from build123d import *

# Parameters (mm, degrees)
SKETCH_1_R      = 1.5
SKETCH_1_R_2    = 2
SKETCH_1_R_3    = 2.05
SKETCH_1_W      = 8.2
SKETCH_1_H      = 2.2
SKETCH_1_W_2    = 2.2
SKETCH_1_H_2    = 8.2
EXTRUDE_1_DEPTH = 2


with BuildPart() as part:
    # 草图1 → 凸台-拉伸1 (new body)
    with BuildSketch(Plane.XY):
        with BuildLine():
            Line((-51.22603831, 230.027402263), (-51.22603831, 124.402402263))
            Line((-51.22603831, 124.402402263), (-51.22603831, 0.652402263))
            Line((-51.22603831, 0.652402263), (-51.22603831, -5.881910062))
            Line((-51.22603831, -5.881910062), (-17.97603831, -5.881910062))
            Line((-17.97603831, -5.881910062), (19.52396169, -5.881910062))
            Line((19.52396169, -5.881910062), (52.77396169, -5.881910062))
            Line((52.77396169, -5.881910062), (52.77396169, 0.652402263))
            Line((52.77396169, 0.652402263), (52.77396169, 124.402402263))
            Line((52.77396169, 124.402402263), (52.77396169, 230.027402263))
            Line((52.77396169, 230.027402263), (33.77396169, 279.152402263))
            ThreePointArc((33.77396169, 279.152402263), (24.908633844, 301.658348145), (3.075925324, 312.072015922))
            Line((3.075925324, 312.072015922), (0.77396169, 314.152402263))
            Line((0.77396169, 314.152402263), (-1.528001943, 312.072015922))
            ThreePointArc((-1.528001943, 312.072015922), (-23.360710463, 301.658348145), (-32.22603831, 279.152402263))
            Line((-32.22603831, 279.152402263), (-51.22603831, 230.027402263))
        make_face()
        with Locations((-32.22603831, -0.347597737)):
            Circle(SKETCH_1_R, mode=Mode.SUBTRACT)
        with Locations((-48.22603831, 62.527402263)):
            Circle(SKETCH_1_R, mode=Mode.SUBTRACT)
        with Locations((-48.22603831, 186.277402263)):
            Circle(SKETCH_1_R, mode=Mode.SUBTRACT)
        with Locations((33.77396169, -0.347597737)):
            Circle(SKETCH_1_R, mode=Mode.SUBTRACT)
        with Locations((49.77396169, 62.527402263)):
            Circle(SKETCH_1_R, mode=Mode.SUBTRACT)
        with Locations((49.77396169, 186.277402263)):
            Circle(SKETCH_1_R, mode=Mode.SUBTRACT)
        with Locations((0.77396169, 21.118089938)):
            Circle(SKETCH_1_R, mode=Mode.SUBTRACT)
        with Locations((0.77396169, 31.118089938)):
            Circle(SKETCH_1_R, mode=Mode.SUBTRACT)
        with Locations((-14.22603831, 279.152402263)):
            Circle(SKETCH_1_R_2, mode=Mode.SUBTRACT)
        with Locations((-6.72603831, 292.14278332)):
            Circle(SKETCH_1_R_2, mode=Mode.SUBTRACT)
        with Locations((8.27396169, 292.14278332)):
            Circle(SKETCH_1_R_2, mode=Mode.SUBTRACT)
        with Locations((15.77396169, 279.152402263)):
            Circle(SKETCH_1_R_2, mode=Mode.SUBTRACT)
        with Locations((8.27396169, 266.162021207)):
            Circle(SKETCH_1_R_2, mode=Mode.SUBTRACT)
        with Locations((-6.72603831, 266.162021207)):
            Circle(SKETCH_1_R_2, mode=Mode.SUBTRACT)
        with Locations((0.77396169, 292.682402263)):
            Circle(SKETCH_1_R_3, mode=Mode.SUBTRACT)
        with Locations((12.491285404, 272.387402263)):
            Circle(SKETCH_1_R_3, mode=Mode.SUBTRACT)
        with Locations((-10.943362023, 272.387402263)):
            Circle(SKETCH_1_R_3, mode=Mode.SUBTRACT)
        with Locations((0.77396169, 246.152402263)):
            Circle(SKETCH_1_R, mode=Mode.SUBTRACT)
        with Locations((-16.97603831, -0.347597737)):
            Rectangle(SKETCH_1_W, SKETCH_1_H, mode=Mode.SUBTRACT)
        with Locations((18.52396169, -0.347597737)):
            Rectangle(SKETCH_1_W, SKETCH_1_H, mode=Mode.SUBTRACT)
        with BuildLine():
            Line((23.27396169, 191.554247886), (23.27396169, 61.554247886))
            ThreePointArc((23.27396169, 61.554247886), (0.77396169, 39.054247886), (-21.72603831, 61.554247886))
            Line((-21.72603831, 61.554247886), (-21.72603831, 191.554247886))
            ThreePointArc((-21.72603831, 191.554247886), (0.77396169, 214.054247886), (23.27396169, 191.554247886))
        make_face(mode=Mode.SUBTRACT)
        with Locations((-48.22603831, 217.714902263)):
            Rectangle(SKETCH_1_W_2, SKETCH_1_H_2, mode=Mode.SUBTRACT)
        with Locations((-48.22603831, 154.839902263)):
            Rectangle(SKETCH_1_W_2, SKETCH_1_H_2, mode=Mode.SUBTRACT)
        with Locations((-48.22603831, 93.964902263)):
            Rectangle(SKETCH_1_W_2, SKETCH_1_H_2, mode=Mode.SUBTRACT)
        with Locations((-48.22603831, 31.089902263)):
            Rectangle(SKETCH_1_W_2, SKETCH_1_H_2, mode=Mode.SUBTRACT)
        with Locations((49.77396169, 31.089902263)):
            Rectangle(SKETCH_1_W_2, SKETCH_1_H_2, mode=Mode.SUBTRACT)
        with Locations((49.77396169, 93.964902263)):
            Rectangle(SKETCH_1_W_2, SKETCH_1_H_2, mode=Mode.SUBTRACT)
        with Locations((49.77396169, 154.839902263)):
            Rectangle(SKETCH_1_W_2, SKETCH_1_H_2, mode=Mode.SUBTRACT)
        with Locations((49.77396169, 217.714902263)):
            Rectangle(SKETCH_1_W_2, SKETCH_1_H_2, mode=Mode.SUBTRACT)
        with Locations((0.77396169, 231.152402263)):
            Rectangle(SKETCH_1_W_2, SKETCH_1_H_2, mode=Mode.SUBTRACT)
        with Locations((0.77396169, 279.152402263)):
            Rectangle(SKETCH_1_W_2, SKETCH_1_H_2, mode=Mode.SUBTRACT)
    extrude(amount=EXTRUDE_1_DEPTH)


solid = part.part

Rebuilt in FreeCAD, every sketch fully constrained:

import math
import FreeCAD as App
import Part
import Sketcher
from FreeCAD import Vector
Q = App.Units.Quantity

doc = App.newDocument("Part")
body = doc.addObject("PartDesign::Body", "Body")

# Sketch on XY plane
sketch1 = body.newObject("Sketcher::SketchObject", "Sketch")
sketch1.AttachmentSupport = (doc.getObject("XY_Plane"), [""])
sketch1.MapMode = "FlatFace"
sketch1.addGeometry([
    Part.LineSegment(Vector(-51.2, 230, 0), Vector(-51.2, -5.9, 0)),  # 0
    Part.LineSegment(Vector(-51.2, -5.9, 0), Vector(52.8, -5.9, 0)),  # 1
    Part.LineSegment(Vector(52.8, -5.9, 0), Vector(52.8, 230, 0)),  # 2
    Part.LineSegment(Vector(52.8, 230, 0), Vector(33.8, 279.2, 0)),  # 3
    Part.ArcOfCircle(Part.Circle(Vector(0.8, 279.2, 0), Vector(0, 0, 1), 33), math.radians(0), math.radians(86)),  # 4
    Part.LineSegment(Vector(3.1, 312.1, 0), Vector(0.8, 314.2, 0)),  # 5
    Part.LineSegment(Vector(0.8, 314.2, 0), Vector(-1.5, 312.1, 0)),  # 6
    Part.ArcOfCircle(Part.Circle(Vector(0.8, 279.2, 0), Vector(0, 0, 1), 33), math.radians(94), math.radians(180)),  # 7
    Part.LineSegment(Vector(-32.2, 279.2, 0), Vector(-51.2, 230, 0)),  # 8
    Part.LineSegment(Vector(-47.1, 27, 0), Vector(-49.3, 27, 0)),  # 9
    Part.LineSegment(Vector(-49.3, 27, 0), Vector(-49.3, 35.2, 0)),  # 10
    Part.LineSegment(Vector(-49.3, 35.2, 0), Vector(-47.1, 35.2, 0)),  # 11
    Part.LineSegment(Vector(-47.1, 35.2, 0), Vector(-47.1, 27, 0)),  # 12
    Part.Circle(Vector(-32.2, -0.3, 0), Vector(0, 0, 1), 1.5),  # 13
    Part.Circle(Vector(-48.2, 62.5, 0), Vector(0, 0, 1), 1.5),  # 14
    Part.LineSegment(Vector(-12.9, -1.4, 0), Vector(-21.1, -1.4, 0)),  # 15
    Part.LineSegment(Vector(-21.1, -1.4, 0), Vector(-21.1, 0.8, 0)),  # 16
    Part.LineSegment(Vector(-21.1, 0.8, 0), Vector(-12.9, 0.8, 0)),  # 17
    Part.LineSegment(Vector(-12.9, 0.8, 0), Vector(-12.9, -1.4, 0)),  # 18
    Part.LineSegment(Vector(-47.1, 89.9, 0), Vector(-49.3, 89.9, 0)),  # 19
    Part.LineSegment(Vector(-49.3, 89.9, 0), Vector(-49.3, 98.1, 0)),  # 20
    Part.LineSegment(Vector(-49.3, 98.1, 0), Vector(-47.1, 98.1, 0)),  # 21
    Part.LineSegment(Vector(-47.1, 98.1, 0), Vector(-47.1, 89.9, 0)),  # 22
    Part.Circle(Vector(0.8, 21.1, 0), Vector(0, 0, 1), 1.5),  # 23
    Part.Circle(Vector(0.8, 31.1, 0), Vector(0, 0, 1), 1.5),  # 24
    Part.LineSegment(Vector(22.6, -1.4, 0), Vector(14.4, -1.4, 0)),  # 25
    Part.LineSegment(Vector(14.4, -1.4, 0), Vector(14.4, 0.8, 0)),  # 26
    Part.LineSegment(Vector(14.4, 0.8, 0), Vector(22.6, 0.8, 0)),  # 27
    Part.LineSegment(Vector(22.6, 0.8, 0), Vector(22.6, -1.4, 0)),  # 28
    Part.Circle(Vector(33.8, -0.3, 0), Vector(0, 0, 1), 1.5),  # 29
    Part.LineSegment(Vector(50.9, 27, 0), Vector(48.7, 27, 0)),  # 30
    Part.LineSegment(Vector(48.7, 27, 0), Vector(48.7, 35.2, 0)),  # 31
    Part.LineSegment(Vector(48.7, 35.2, 0), Vector(50.9, 35.2, 0)),  # 32
    Part.LineSegment(Vector(50.9, 35.2, 0), Vector(50.9, 27, 0)),  # 33
    Part.Circle(Vector(49.8, 62.5, 0), Vector(0, 0, 1), 1.5),  # 34
    Part.ArcOfCircle(Part.Circle(Vector(0.8, 191.6, 0), Vector(0, 0, 1), 22.5), math.radians(0), math.radians(180)),  # 35
    Part.LineSegment(Vector(23.3, 191.6, 0), Vector(23.3, 61.6, 0)),  # 36
    Part.ArcOfCircle(Part.Circle(Vector(0.8, 61.6, 0), Vector(0, 0, 1), 22.5), math.radians(180), math.radians(360)),  # 37
    Part.LineSegment(Vector(-21.7, 61.6, 0), Vector(-21.7, 191.6, 0)),  # 38
    Part.LineSegment(Vector(50.9, 89.9, 0), Vector(48.7, 89.9, 0)),  # 39
    Part.LineSegment(Vector(48.7, 89.9, 0), Vector(48.7, 98.1, 0)),  # 40
    Part.LineSegment(Vector(48.7, 98.1, 0), Vector(50.9, 98.1, 0)),  # 41
    Part.LineSegment(Vector(50.9, 98.1, 0), Vector(50.9, 89.9, 0)),  # 42
    Part.LineSegment(Vector(-47.1, 150.7, 0), Vector(-49.3, 150.7, 0)),  # 43
    Part.LineSegment(Vector(-49.3, 150.7, 0), Vector(-49.3, 158.9, 0)),  # 44
    Part.LineSegment(Vector(-49.3, 158.9, 0), Vector(-47.1, 158.9, 0)),  # 45
    Part.LineSegment(Vector(-47.1, 158.9, 0), Vector(-47.1, 150.7, 0)),  # 46
    Part.Circle(Vector(-48.2, 186.3, 0), Vector(0, 0, 1), 1.5),  # 47
    Part.LineSegment(Vector(-47.1, 213.6, 0), Vector(-49.3, 213.6, 0)),  # 48
    Part.LineSegment(Vector(-49.3, 213.6, 0), Vector(-49.3, 221.8, 0)),  # 49
    Part.LineSegment(Vector(-49.3, 221.8, 0), Vector(-47.1, 221.8, 0)),  # 50
    Part.LineSegment(Vector(-47.1, 221.8, 0), Vector(-47.1, 213.6, 0)),  # 51
    Part.Circle(Vector(-14.2, 279.2, 0), Vector(0, 0, 1), 2),  # 52
    Part.Circle(Vector(-6.7, 266.2, 0), Vector(0, 0, 1), 2),  # 53
    Part.Circle(Vector(-10.9, 272.4, 0), Vector(0, 0, 1), 2),  # 54
    Part.Circle(Vector(-6.7, 292.1, 0), Vector(0, 0, 1), 2),  # 55
    Part.LineSegment(Vector(50.9, 150.7, 0), Vector(48.7, 150.7, 0)),  # 56
    Part.LineSegment(Vector(48.7, 150.7, 0), Vector(48.7, 158.9, 0)),  # 57
    Part.LineSegment(Vector(48.7, 158.9, 0), Vector(50.9, 158.9, 0)),  # 58
    Part.LineSegment(Vector(50.9, 158.9, 0), Vector(50.9, 150.7, 0)),  # 59
    Part.Circle(Vector(49.8, 186.3, 0), Vector(0, 0, 1), 1.5),  # 60
    Part.LineSegment(Vector(50.9, 213.6, 0), Vector(48.7, 213.6, 0)),  # 61
    Part.LineSegment(Vector(48.7, 213.6, 0), Vector(48.7, 221.8, 0)),  # 62
    Part.LineSegment(Vector(48.7, 221.8, 0), Vector(50.9, 221.8, 0)),  # 63
    Part.LineSegment(Vector(50.9, 221.8, 0), Vector(50.9, 213.6, 0)),  # 64
    Part.LineSegment(Vector(1.9, 227.1, 0), Vector(-0.3, 227.1, 0)),  # 65
    Part.LineSegment(Vector(-0.3, 227.1, 0), Vector(-0.3, 235.3, 0)),  # 66
    Part.LineSegment(Vector(-0.3, 235.3, 0), Vector(1.9, 235.3, 0)),  # 67
    Part.LineSegment(Vector(1.9, 235.3, 0), Vector(1.9, 227.1, 0)),  # 68
    Part.Circle(Vector(0.8, 246.2, 0), Vector(0, 0, 1), 1.5),  # 69
    Part.Circle(Vector(8.3, 266.2, 0), Vector(0, 0, 1), 2),  # 70
    Part.Circle(Vector(12.5, 272.4, 0), Vector(0, 0, 1), 2),  # 71
    Part.LineSegment(Vector(1.9, 275.1, 0), Vector(-0.3, 275.1, 0)),  # 72
    Part.LineSegment(Vector(-0.3, 275.1, 0), Vector(-0.3, 283.3, 0)),  # 73
    Part.LineSegment(Vector(-0.3, 283.3, 0), Vector(1.9, 283.3, 0)),  # 74
    Part.LineSegment(Vector(1.9, 283.3, 0), Vector(1.9, 275.1, 0)),  # 75
    Part.Circle(Vector(0.8, 292.7, 0), Vector(0, 0, 1), 2),  # 76
    Part.Circle(Vector(8.3, 292.1, 0), Vector(0, 0, 1), 2),  # 77
    Part.Circle(Vector(15.8, 279.2, 0), Vector(0, 0, 1), 2),  # 78
], False)
sketch1.addConstraint([
    Sketcher.Constraint("Coincident", 0, 2, 1, 1),
    Sketcher.Constraint("Coincident", 1, 2, 2, 1),
    Sketcher.Constraint("Coincident", 2, 2, 3, 1),
    Sketcher.Constraint("Coincident", 3, 2, 4, 1),
    Sketcher.Constraint("Coincident", 4, 2, 5, 1),
    Sketcher.Constraint("Coincident", 5, 2, 6, 1),
    Sketcher.Constraint("Coincident", 6, 2, 7, 1),
    Sketcher.Constraint("Coincident", 7, 2, 8, 1),
    Sketcher.Constraint("Coincident", 8, 2, 0, 1),
    Sketcher.Constraint("Coincident", 9, 2, 10, 1),
    Sketcher.Constraint("Coincident", 10, 2, 11, 1),
    Sketcher.Constraint("Coincident", 11, 2, 12, 1),
    Sketcher.Constraint("Coincident", 12, 2, 9, 1),
    Sketcher.Constraint("Coincident", 15, 2, 16, 1),
    Sketcher.Constraint("Coincident", 16, 2, 17, 1),
    Sketcher.Constraint("Coincident", 17, 2, 18, 1),
    Sketcher.Constraint("Coincident", 18, 2, 15, 1),
    Sketcher.Constraint("Coincident", 19, 2, 20, 1),
    Sketcher.Constraint("Coincident", 20, 2, 21, 1),
    Sketcher.Constraint("Coincident", 21, 2, 22, 1),
    Sketcher.Constraint("Coincident", 22, 2, 19, 1),
    Sketcher.Constraint("Coincident", 25, 2, 26, 1),
    Sketcher.Constraint("Coincident", 26, 2, 27, 1),
    Sketcher.Constraint("Coincident", 27, 2, 28, 1),
    Sketcher.Constraint("Coincident", 28, 2, 25, 1),
    Sketcher.Constraint("Coincident", 30, 2, 31, 1),
    Sketcher.Constraint("Coincident", 31, 2, 32, 1),
    Sketcher.Constraint("Coincident", 32, 2, 33, 1),
    Sketcher.Constraint("Coincident", 33, 2, 30, 1),
    Sketcher.Constraint("Tangent", 35, 1, 36, 1),
    Sketcher.Constraint("Tangent", 36, 2, 37, 2),
    Sketcher.Constraint("Tangent", 37, 1, 38, 1),
    Sketcher.Constraint("Tangent", 38, 2, 35, 2),
    Sketcher.Constraint("Coincident", 39, 2, 40, 1),
    Sketcher.Constraint("Coincident", 40, 2, 41, 1),
    Sketcher.Constraint("Coincident", 41, 2, 42, 1),
    Sketcher.Constraint("Coincident", 42, 2, 39, 1),
    Sketcher.Constraint("Coincident", 43, 2, 44, 1),
    Sketcher.Constraint("Coincident", 44, 2, 45, 1),
    Sketcher.Constraint("Coincident", 45, 2, 46, 1),
    Sketcher.Constraint("Coincident", 46, 2, 43, 1),
    Sketcher.Constraint("Coincident", 48, 2, 49, 1),
    Sketcher.Constraint("Coincident", 49, 2, 50, 1),
    Sketcher.Constraint("Coincident", 50, 2, 51, 1),
    Sketcher.Constraint("Coincident", 51, 2, 48, 1),
    Sketcher.Constraint("Coincident", 56, 2, 57, 1),
    Sketcher.Constraint("Coincident", 57, 2, 58, 1),
    Sketcher.Constraint("Coincident", 58, 2, 59, 1),
    Sketcher.Constraint("Coincident", 59, 2, 56, 1),
    Sketcher.Constraint("Coincident", 61, 2, 62, 1),
    Sketcher.Constraint("Coincident", 62, 2, 63, 1),
    Sketcher.Constraint("Coincident", 63, 2, 64, 1),
    Sketcher.Constraint("Coincident", 64, 2, 61, 1),
    Sketcher.Constraint("Coincident", 65, 2, 66, 1),
    Sketcher.Constraint("Coincident", 66, 2, 67, 1),
    Sketcher.Constraint("Coincident", 67, 2, 68, 1),
    Sketcher.Constraint("Coincident", 68, 2, 65, 1),
    Sketcher.Constraint("Coincident", 72, 2, 73, 1),
    Sketcher.Constraint("Coincident", 73, 2, 74, 1),
    Sketcher.Constraint("Coincident", 74, 2, 75, 1),
    Sketcher.Constraint("Coincident", 75, 2, 72, 1),
    Sketcher.Constraint("Vertical", 0),
    Sketcher.Constraint("Horizontal", 1),
    Sketcher.Constraint("Vertical", 2),
    Sketcher.Constraint("Horizontal", 9),
    Sketcher.Constraint("Vertical", 10),
    Sketcher.Constraint("Horizontal", 11),
    Sketcher.Constraint("Vertical", 12),
    Sketcher.Constraint("Horizontal", 15),
    Sketcher.Constraint("Vertical", 16),
    Sketcher.Constraint("Horizontal", 17),
    Sketcher.Constraint("Vertical", 18),
    Sketcher.Constraint("Horizontal", 19),
    Sketcher.Constraint("Vertical", 20),
    Sketcher.Constraint("Horizontal", 21),
    Sketcher.Constraint("Vertical", 22),
    Sketcher.Constraint("Horizontal", 25),
    Sketcher.Constraint("Vertical", 26),
    Sketcher.Constraint("Horizontal", 27),
    Sketcher.Constraint("Vertical", 28),
    Sketcher.Constraint("Horizontal", 30),
    Sketcher.Constraint("Vertical", 31),
    Sketcher.Constraint("Horizontal", 32),
    Sketcher.Constraint("Vertical", 33),
    Sketcher.Constraint("Vertical", 36),
    Sketcher.Constraint("Vertical", 38),
    Sketcher.Constraint("Horizontal", 39),
    Sketcher.Constraint("Vertical", 40),
    Sketcher.Constraint("Horizontal", 41),
    Sketcher.Constraint("Vertical", 42),
    Sketcher.Constraint("Horizontal", 43),
    Sketcher.Constraint("Vertical", 44),
    Sketcher.Constraint("Horizontal", 45),
    Sketcher.Constraint("Vertical", 46),
    Sketcher.Constraint("Horizontal", 48),
    Sketcher.Constraint("Vertical", 49),
    Sketcher.Constraint("Horizontal", 50),
    Sketcher.Constraint("Vertical", 51),
    Sketcher.Constraint("Horizontal", 56),
    Sketcher.Constraint("Vertical", 57),
    Sketcher.Constraint("Horizontal", 58),
    Sketcher.Constraint("Vertical", 59),
    Sketcher.Constraint("Horizontal", 61),
    Sketcher.Constraint("Vertical", 62),
    Sketcher.Constraint("Horizontal", 63),
    Sketcher.Constraint("Vertical", 64),
    Sketcher.Constraint("Horizontal", 65),
    Sketcher.Constraint("Vertical", 66),
    Sketcher.Constraint("Horizontal", 67),
    Sketcher.Constraint("Vertical", 68),
    Sketcher.Constraint("Horizontal", 72),
    Sketcher.Constraint("Vertical", 73),
    Sketcher.Constraint("Horizontal", 74),
    Sketcher.Constraint("Vertical", 75),
    Sketcher.Constraint("Coincident", 7, 3, 4, 3),
    Sketcher.Constraint("Equal", 4, 7),
    Sketcher.Constraint("Equal", 13, 14),
    Sketcher.Constraint("Equal", 14, 23),
    Sketcher.Constraint("Equal", 23, 24),
    Sketcher.Constraint("Equal", 24, 29),
    Sketcher.Constraint("Equal", 29, 34),
    Sketcher.Constraint("Equal", 34, 47),
    Sketcher.Constraint("Equal", 52, 53),
    Sketcher.Constraint("Equal", 53, 55),
    Sketcher.Constraint("Equal", 47, 60),
    Sketcher.Constraint("Equal", 60, 69),
    Sketcher.Constraint("Equal", 55, 70),
    Sketcher.Constraint("Equal", 54, 71),
    Sketcher.Constraint("Equal", 71, 76),
    Sketcher.Constraint("Equal", 70, 77),
    Sketcher.Constraint("Equal", 77, 78),
    Sketcher.Constraint("Horizontal", 13, 3, 29, 3),
    Sketcher.Constraint("Horizontal", 14, 3, 34, 3),
    Sketcher.Constraint("Horizontal", 7, 3, 52, 3),
    Sketcher.Constraint("Horizontal", 47, 3, 60, 3),
    Sketcher.Constraint("Horizontal", 53, 3, 70, 3),
    Sketcher.Constraint("Horizontal", 54, 3, 71, 3),
    Sketcher.Constraint("Horizontal", 55, 3, 77, 3),
    Sketcher.Constraint("Horizontal", 52, 3, 78, 3),
    Sketcher.Constraint("Horizontal", 78, 3, 3, 2),
    Sketcher.Constraint("Horizontal", 4, 2, 6, 2),
    Sketcher.Constraint("Horizontal", 3, 2, 7, 2),
    Sketcher.Constraint("Horizontal", 2, 2, 8, 2),
    Sketcher.Constraint("Horizontal", 18, 2, 25, 2),
    Sketcher.Constraint("Horizontal", 17, 2, 26, 2),
    Sketcher.Constraint("Horizontal", 12, 2, 30, 2),
    Sketcher.Constraint("Horizontal", 11, 2, 31, 2),
    Sketcher.Constraint("Horizontal", 22, 2, 39, 2),
    Sketcher.Constraint("Horizontal", 21, 2, 40, 2),
    Sketcher.Constraint("Horizontal", 46, 2, 56, 2),
    Sketcher.Constraint("Horizontal", 45, 2, 57, 2),
    Sketcher.Constraint("Horizontal", 51, 2, 61, 2),
    Sketcher.Constraint("Horizontal", 50, 2, 62, 2),
    Sketcher.Constraint("Vertical", 7, 3, 23, 3),
    Sketcher.Constraint("Vertical", 23, 3, 24, 3),
    Sketcher.Constraint("Vertical", 24, 3, 35, 3),
    Sketcher.Constraint("Vertical", 14, 3, 47, 3),
    Sketcher.Constraint("Vertical", 53, 3, 55, 3),
    Sketcher.Constraint("Vertical", 34, 3, 60, 3),
    Sketcher.Constraint("Vertical", 37, 3, 69, 3),
    Sketcher.Constraint("Vertical", 69, 3, 76, 3),
    Sketcher.Constraint("Vertical", 70, 3, 77, 3),
    Sketcher.Constraint("Vertical", 29, 3, 3, 2),
    Sketcher.Constraint("Vertical", 76, 3, 5, 2),
    Sketcher.Constraint("Vertical", 13, 3, 7, 2),
    Sketcher.Constraint("Vertical", 10, 2, 19, 2),
    Sketcher.Constraint("Vertical", 12, 2, 21, 2),
    Sketcher.Constraint("Vertical", 31, 2, 39, 2),
    Sketcher.Constraint("Vertical", 33, 2, 41, 2),
    Sketcher.Constraint("Vertical", 20, 2, 43, 2),
    Sketcher.Constraint("Vertical", 22, 2, 45, 2),
    Sketcher.Constraint("Vertical", 44, 2, 48, 2),
    Sketcher.Constraint("Vertical", 46, 2, 50, 2),
    Sketcher.Constraint("Vertical", 40, 2, 56, 2),
    Sketcher.Constraint("Vertical", 42, 2, 58, 2),
    Sketcher.Constraint("Vertical", 57, 2, 61, 2),
    Sketcher.Constraint("Vertical", 59, 2, 63, 2),
    Sketcher.Constraint("Vertical", 66, 2, 72, 2),
    Sketcher.Constraint("Vertical", 68, 2, 74, 2),
    Sketcher.Constraint("Equal", 17, 25),
    Sketcher.Constraint("Equal", 21, 30),
    Sketcher.Constraint("Equal", 63, 65),
    Sketcher.Constraint("Equal", 27, 10),
    Sketcher.Constraint("Equal", 74, 16),
    Sketcher.Constraint("Equal", 12, 20),
    Sketcher.Constraint("Equal", 42, 44),
    Sketcher.Constraint("Equal", 46, 49),
    Sketcher.Constraint("Equal", 64, 66),
    Sketcher.Constraint("Equal", 68, 73),
    Sketcher.Constraint("Equal", 3, 8),
    Sketcher.Constraint("Diameter", 13, Q("3 mm")),
    Sketcher.Constraint("Diameter", 52, Q("4 mm")),
    Sketcher.Constraint("Radius", 4, Q("33 mm")),
    Sketcher.Constraint("Diameter", 54, Q("4.1 mm")),
    Sketcher.Constraint("Radius", 35, Q("22.5 mm")),
    Sketcher.Constraint("DistanceX", 1, 1, 1, 2, Q("104 mm")),
    Sketcher.Constraint("DistanceY", 36, 2, 36, 1, Q("130 mm")),
    Sketcher.Constraint("DistanceX", 9, 2, 9, 1, Q("2.2 mm")),
    Sketcher.Constraint("DistanceX", 15, 2, 15, 1, Q("8.2 mm")),
    Sketcher.Constraint("DistanceX", 6, 2, -1, 1, Q("1.528002 mm")),
    Sketcher.Constraint("DistanceY", 0, 2, 0, 1, Q("235.909312 mm")),
    Sketcher.Constraint("DistanceX", -1, 1, 4, 3, Q("0.773962 mm")),
    Sketcher.Constraint("DistanceX", 14, 3, -1, 1, Q("48.226038 mm")),
    Sketcher.Constraint("DistanceY", -1, 1, 23, 3, Q("21.11809 mm")),
    Sketcher.Constraint("DistanceY", -1, 1, 24, 3, Q("31.11809 mm")),
    Sketcher.Constraint("DistanceX", -1, 1, 34, 3, Q("49.773962 mm")),
    Sketcher.Constraint("DistanceX", 52, 3, -1, 1, Q("14.226038 mm")),
    Sketcher.Constraint("DistanceX", 53, 3, -1, 1, Q("6.726038 mm")),
    Sketcher.Constraint("DistanceY", -1, 1, 53, 3, Q("266.162021 mm")),
    Sketcher.Constraint("DistanceX", -1, 1, 70, 3, Q("8.273962 mm")),
    Sketcher.Constraint("DistanceX", -1, 1, 78, 3, Q("15.773962 mm")),
    Sketcher.Constraint("DistanceY", 0, 2, -1, 1, Q("5.88191 mm")),
    Sketcher.Constraint("DistanceX", 9, 2, -1, 1, Q("49.326038 mm")),
    Sketcher.Constraint("DistanceX", 15, 2, -1, 1, Q("21.076038 mm")),
    Sketcher.Constraint("DistanceX", -1, 1, 25, 2, Q("14.423962 mm")),
    Sketcher.Constraint("DistanceX", -1, 1, 30, 2, Q("48.673962 mm")),
    Sketcher.Constraint("DistanceX", 65, 2, -1, 1, Q("0.326038 mm")),
    Sketcher.Constraint("Distance", 3, Q("52.671298 mm")),
    Sketcher.Constraint("Distance", 5, Q("3.102748 mm")),
    Sketcher.Constraint("DistanceY", 13, 3, -1, 1, Q("0.347598 mm")),
    Sketcher.Constraint("DistanceY", -1, 1, 14, 3, Q("62.527402 mm")),
    Sketcher.Constraint("DistanceY", -1, 1, 35, 3, Q("191.554248 mm")),
    Sketcher.Constraint("DistanceY", -1, 1, 47, 3, Q("186.277402 mm")),
    Sketcher.Constraint("DistanceX", 54, 3, -1, 1, Q("10.943362 mm")),
    Sketcher.Constraint("DistanceY", -1, 1, 54, 3, Q("272.387402 mm")),
    Sketcher.Constraint("DistanceY", -1, 1, 55, 3, Q("292.142783 mm")),
    Sketcher.Constraint("DistanceY", -1, 1, 69, 3, Q("246.152402 mm")),
    Sketcher.Constraint("DistanceX", -1, 1, 71, 3, Q("12.491285 mm")),
    Sketcher.Constraint("DistanceY", -1, 1, 76, 3, Q("292.682402 mm")),
    Sketcher.Constraint("DistanceY", -1, 1, 9, 2, Q("26.989902 mm")),
    Sketcher.Constraint("DistanceY", 15, 2, -1, 1, Q("1.447598 mm")),
    Sketcher.Constraint("DistanceY", -1, 1, 19, 2, Q("89.864902 mm")),
    Sketcher.Constraint("DistanceY", -1, 1, 43, 2, Q("150.739902 mm")),
    Sketcher.Constraint("DistanceY", -1, 1, 48, 2, Q("213.614902 mm")),
    Sketcher.Constraint("DistanceY", -1, 1, 65, 2, Q("227.052402 mm")),
    Sketcher.Constraint("DistanceY", -1, 1, 72, 2, Q("275.052402 mm")),
])
pad1 = body.newObject("PartDesign::Pad", "Pad")
pad1.Profile = sketch1
pad1.Length = 2

doc.recompute()
